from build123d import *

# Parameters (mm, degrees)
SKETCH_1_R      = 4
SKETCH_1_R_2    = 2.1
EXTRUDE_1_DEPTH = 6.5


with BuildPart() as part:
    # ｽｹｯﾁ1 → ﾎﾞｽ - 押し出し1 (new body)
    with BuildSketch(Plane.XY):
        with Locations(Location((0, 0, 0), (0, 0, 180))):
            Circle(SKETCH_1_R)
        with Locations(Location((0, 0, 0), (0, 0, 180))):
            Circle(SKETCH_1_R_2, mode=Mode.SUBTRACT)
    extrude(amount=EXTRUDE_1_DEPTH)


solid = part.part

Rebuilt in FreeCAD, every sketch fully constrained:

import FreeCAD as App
import Part
import Sketcher
Q = App.Units.Quantity

doc = App.newDocument("Part")
params = doc.addObject("Spreadsheet::Sheet", "Params")
for row, (alias, value) in enumerate([
    ("sketch1_diameter", "8 mm"),
    ("sketch1_diameter2", "4.2 mm"),
    ("pad1_length", "6.5 mm"),
], start=1):
    params.set(f"A{row}", alias)
    params.set(f"B{row}", "=" + value)
    params.setAlias(f"B{row}", alias)

body = doc.addObject("PartDesign::Body", "Body")

# Sketch on XY plane
sketch1 = body.newObject("Sketcher::SketchObject", "Sketch")
sketch1.AttachmentSupport = (doc.getObject("XY_Plane"), [""])
sketch1.MapMode = "FlatFace"
sketch1.addGeometry([
    Part.Circle(App.Vector(0, 0, 0), App.Vector(0, 0, 1), 4),
    Part.Circle(App.Vector(0, 0, 0), App.Vector(0, 0, 1), 2.1),
], False)
sketch1.addConstraint([
    Sketcher.Constraint("Coincident", 0, 3, -1, 1),
    Sketcher.Constraint("Coincident", 1, 3, -1, 1),
    Sketcher.Constraint("Diameter", 0, Q("8 mm")),
    Sketcher.Constraint("Diameter", 1, Q("4.2 mm")),
])
sketch1.setExpression("Constraints[2]", "Params.sketch1_diameter")
sketch1.setExpression("Constraints[3]", "Params.sketch1_diameter2")
pad1 = body.newObject("PartDesign::Pad", "Pad")
pad1.Profile = sketch1
pad1.setExpression("Length", "Params.pad1_length")

doc.recompute()
